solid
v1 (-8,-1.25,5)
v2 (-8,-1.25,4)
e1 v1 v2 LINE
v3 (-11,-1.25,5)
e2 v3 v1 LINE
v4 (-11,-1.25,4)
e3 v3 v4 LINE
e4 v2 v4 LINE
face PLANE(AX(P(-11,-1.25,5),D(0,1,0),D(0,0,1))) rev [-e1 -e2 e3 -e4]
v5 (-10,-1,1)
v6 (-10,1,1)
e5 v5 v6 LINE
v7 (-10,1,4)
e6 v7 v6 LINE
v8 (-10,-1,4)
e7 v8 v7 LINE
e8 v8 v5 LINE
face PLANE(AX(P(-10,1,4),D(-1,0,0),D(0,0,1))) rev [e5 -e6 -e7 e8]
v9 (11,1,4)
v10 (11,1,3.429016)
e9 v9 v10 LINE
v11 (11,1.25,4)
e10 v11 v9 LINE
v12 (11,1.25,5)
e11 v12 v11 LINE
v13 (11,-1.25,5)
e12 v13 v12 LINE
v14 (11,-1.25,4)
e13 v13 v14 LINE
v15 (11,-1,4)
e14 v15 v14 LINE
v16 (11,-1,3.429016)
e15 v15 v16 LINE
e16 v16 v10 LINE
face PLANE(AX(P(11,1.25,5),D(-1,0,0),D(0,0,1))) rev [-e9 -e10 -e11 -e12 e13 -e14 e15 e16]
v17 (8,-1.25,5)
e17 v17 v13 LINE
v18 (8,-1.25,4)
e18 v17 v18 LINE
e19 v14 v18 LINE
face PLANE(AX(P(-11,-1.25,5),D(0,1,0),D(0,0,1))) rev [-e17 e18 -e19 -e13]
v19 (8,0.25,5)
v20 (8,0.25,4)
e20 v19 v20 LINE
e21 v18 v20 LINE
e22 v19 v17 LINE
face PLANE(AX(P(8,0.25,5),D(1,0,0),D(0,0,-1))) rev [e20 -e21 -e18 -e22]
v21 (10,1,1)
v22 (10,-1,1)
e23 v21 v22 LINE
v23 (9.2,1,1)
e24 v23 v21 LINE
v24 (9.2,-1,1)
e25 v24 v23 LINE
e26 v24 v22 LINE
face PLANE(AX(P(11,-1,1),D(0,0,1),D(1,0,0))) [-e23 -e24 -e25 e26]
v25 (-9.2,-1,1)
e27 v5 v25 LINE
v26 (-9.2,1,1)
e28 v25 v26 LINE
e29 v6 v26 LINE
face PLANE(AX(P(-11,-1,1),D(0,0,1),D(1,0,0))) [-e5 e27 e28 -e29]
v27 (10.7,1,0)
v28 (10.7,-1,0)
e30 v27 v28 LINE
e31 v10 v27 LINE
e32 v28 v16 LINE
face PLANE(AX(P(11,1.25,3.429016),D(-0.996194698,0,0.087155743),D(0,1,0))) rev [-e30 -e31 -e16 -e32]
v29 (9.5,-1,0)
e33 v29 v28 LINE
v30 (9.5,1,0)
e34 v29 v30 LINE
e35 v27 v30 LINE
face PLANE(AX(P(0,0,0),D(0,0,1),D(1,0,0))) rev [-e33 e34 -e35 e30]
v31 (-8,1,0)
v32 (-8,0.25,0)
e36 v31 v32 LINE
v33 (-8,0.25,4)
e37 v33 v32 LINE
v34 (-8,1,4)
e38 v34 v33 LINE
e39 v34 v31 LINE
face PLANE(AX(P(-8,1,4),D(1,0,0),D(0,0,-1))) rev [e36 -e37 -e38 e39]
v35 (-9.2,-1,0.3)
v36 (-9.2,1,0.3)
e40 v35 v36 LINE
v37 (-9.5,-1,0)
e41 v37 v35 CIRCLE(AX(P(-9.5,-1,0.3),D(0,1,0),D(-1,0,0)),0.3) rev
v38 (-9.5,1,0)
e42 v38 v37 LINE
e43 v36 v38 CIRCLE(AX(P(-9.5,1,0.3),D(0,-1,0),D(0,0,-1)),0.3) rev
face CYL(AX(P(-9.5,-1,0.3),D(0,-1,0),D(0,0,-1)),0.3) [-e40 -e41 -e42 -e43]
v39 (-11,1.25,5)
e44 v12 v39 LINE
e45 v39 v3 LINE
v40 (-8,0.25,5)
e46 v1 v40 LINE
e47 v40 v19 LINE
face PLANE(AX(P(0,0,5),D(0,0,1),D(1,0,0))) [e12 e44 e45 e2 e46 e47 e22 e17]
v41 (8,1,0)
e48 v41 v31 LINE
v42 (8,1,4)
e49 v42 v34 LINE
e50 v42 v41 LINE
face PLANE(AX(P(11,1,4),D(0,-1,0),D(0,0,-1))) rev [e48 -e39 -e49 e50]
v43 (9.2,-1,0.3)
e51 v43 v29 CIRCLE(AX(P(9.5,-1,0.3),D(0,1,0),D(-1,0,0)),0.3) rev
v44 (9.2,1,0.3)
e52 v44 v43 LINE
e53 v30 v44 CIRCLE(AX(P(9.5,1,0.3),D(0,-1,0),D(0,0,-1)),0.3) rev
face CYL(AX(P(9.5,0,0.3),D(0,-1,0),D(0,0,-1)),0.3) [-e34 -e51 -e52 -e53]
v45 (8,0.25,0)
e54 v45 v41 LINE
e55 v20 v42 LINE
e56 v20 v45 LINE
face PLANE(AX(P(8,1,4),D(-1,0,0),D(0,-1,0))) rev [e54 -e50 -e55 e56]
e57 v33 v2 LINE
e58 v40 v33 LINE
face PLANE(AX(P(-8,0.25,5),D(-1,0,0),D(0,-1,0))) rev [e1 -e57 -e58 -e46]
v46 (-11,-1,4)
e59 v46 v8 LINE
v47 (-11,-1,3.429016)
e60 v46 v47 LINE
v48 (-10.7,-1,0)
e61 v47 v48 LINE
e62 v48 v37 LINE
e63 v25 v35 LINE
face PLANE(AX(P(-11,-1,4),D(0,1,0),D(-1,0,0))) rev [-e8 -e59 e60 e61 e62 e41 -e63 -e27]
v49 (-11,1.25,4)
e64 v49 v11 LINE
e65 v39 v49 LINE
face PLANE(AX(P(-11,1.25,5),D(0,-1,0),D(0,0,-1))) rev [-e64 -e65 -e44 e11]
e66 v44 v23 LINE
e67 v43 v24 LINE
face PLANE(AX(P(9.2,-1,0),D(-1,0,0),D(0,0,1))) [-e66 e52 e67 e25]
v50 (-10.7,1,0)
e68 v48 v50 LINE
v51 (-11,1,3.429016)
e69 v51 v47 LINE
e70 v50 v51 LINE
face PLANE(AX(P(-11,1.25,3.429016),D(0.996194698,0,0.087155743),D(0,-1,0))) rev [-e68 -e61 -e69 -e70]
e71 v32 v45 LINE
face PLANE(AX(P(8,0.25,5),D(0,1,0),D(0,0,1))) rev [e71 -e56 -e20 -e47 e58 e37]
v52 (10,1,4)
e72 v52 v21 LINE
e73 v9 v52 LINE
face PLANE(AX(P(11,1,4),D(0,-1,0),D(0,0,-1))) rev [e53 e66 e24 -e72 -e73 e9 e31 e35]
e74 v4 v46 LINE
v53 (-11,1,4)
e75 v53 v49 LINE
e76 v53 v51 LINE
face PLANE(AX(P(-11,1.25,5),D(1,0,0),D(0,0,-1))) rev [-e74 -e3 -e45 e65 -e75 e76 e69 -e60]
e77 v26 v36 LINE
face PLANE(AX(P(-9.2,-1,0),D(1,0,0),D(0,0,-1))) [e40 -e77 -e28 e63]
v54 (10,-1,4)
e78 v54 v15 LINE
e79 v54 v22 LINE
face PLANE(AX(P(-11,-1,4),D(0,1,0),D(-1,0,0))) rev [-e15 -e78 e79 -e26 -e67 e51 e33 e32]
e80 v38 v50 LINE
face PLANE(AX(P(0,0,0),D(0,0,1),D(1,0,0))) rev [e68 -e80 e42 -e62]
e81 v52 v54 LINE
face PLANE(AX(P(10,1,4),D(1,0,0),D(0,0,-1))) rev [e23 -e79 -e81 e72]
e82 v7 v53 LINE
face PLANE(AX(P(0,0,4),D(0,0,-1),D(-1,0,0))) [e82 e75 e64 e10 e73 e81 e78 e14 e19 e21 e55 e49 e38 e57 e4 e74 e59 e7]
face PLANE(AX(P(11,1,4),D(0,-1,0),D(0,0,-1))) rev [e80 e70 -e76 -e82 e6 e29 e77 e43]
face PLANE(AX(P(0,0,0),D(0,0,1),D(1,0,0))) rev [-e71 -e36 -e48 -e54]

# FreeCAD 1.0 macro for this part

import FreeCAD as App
import Part
import Sketcher

V = App.Vector


def edges_at(feature, points):
    """Names of the edges that pass closest to the given points."""
    edges = feature.Shape.Edges
    near = lambda p: min(range(len(edges)), key=lambda i: edges[i].distToShape(Part.Vertex(*p))[0])
    return sorted({f"Edge{near(p) + 1}" for p in points})

doc = App.newDocument("Part")
body = doc.addObject("PartDesign::Body", "Body")

# Sketch on XY plane
sketch1 = body.newObject("Sketcher::SketchObject", "Sketch")
sketch1.AttachmentSupport = (doc.getObject("XY_Plane"), [""])
sketch1.MapMode = "FlatFace"
sketch1.addGeometry(Part.LineSegment(V(-11, 1.25, 0), V(-11, -1.25, 0)), False)
sketch1.addGeometry(Part.LineSegment(V(-11, -1.25, 0), V(11, -1.25, 0)), False)
sketch1.addGeometry(Part.LineSegment(V(11, -1.25, 0), V(11, 1.25, 0)), False)
sketch1.addGeometry(Part.LineSegment(V(11, 1.25, 0), V(-11, 1.25, 0)), False)
sketch1.addConstraint(Sketcher.Constraint("Coincident", 0, 2, 1, 1))
sketch1.addConstraint(Sketcher.Constraint("Coincident", 1, 2, 2, 1))
sketch1.addConstraint(Sketcher.Constraint("Coincident", 2, 2, 3, 1))
sketch1.addConstraint(Sketcher.Constraint("Coincident", 3, 2, 0, 1))
sketch1.addConstraint(Sketcher.Constraint("Vertical", 0))
sketch1.addConstraint(Sketcher.Constraint("Horizontal", 1))
sketch1.addConstraint(Sketcher.Constraint("Vertical", 2))
sketch1.addConstraint(Sketcher.Constraint("Horizontal", 3))
sketch1.addConstraint(Sketcher.Constraint("Symmetric", 0, 2, 2, 2, -1, 1))
sketch1.addConstraint(Sketcher.Constraint("DistanceX", 1, 1, 1, 2, 22.0))
sketch1.addConstraint(Sketcher.Constraint("DistanceY", 0, 2, 0, 1, 2.5))
pad1 = body.newObject("PartDesign::Pad", "Pad")
pad1.Profile = sketch1
pad1.Length = 5

# Sketch on XY plane
sketch2 = body.newObject("Sketcher::SketchObject", "Sketch001")
sketch2.AttachmentSupport = (doc.getObject("XY_Plane"), [""])
sketch2.MapMode = "FlatFace"
sketch2.addGeometry(Part.LineSegment(V(11, 1.25, 0), V(11, 1, 0)), False)
sketch2.addGeometry(Part.LineSegment(V(11, 1, 0), V(-11, 1, 0)), False)
sketch2.addGeometry(Part.LineSegment(V(-11, 1, 0), V(-11, 1.25, 0)), False)
sketch2.addGeometry(Part.LineSegment(V(-11, 1.25, 0), V(11, 1.25, 0)), False)
sketch2.addGeometry(Part.LineSegment(V(11, -1, 0), V(11, -1.25, 0)), False)
sketch2.addGeometry(Part.LineSegment(V(11, -1.25, 0), V(-11, -1.25, 0)), False)
sketch2.addGeometry(Part.LineSegment(V(-11, -1.25, 0), V(-11, -1, 0)), False)
sketch2.addGeometry(Part.LineSegment(V(-11, -1, 0), V(11, -1, 0)), False)
sketch2.addConstraint(Sketcher.Constraint("Coincident", 0, 2, 1, 1))
sketch2.addConstraint(Sketcher.Constraint("Coincident", 1, 2, 2, 1))
sketch2.addConstraint(Sketcher.Constraint("Coincident", 2, 2, 3, 1))
sketch2.addConstraint(Sketcher.Constraint("Coincident", 3, 2, 0, 1))
sketch2.addConstraint(Sketcher.Constraint("Coincident", 4, 2, 5, 1))
sketch2.addConstraint(Sketcher.Constraint("Coincident", 5, 2, 6, 1))
sketch2.addConstraint(Sketcher.Constraint("Coincident", 6, 2, 7, 1))
sketch2.addConstraint(Sketcher.Constraint("Coincident", 7, 2, 4, 1))
sketch2.addConstraint(Sketcher.Constraint("Vertical", 0))
sketch2.addConstraint(Sketcher.Constraint("Horizontal", 1))
sketch2.addConstraint(Sketcher.Constraint("Vertical", 2))
sketch2.addConstraint(Sketcher.Constraint("Horizontal", 3))
sketch2.addConstraint(Sketcher.Constraint("Vertical", 4))
sketch2.addConstraint(Sketcher.Constraint("Horizontal", 5))
sketch2.addConstraint(Sketcher.Constraint("Vertical", 6))
sketch2.addConstraint(Sketcher.Constraint("Horizontal", 7))
sketch2.addConstraint(Sketcher.Constraint("Symmetric", 2, 2, 4, 2, -1, 1))
sketch2.addConstraint(Sketcher.Constraint("Symmetric", 0, 2, 6, 2, -1, 1))
sketch2.addConstraint(Sketcher.Constraint("Vertical", 3, 2, 4, 2))
sketch2.addConstraint(Sketcher.Constraint("DistanceX", 1, 2, 1, 1, 22.0))
sketch2.addConstraint(Sketcher.Constraint("DistanceY", -1, 1, 0, 2, 1.0))
sketch2.addConstraint(Sketcher.Constraint("DistanceY", 0, 2, 0, 1, 0.25))
pocket1 = body.newObject("PartDesign::Pocket", "Pocket")
pocket1.Profile = sketch2
pocket1.Length = 4
pocket1.Reversed = True

# Sketch on XY plane
sketch3 = body.newObject("Sketcher::SketchObject", "Sketch002")
sketch3.AttachmentSupport = (doc.getObject("XY_Plane"), [""])
sketch3.MapMode = "FlatFace"
sketch3.addGeometry(Part.LineSegment(V(10, 1, 0), V(10, -1, 0)), False)
sketch3.addGeometry(Part.LineSegment(V(10, -1, 0), V(8, -1, 0)), False)
sketch3.addGeometry(Part.LineSegment(V(8, -1, 0), V(8, 1, 0)), False)
sketch3.addGeometry(Part.LineSegment(V(8, 1, 0), V(10, 1, 0)), False)
sketch3.addGeometry(Part.LineSegment(V(-8, 1, 0), V(-8, -1, 0)), False)
sketch3.addGeometry(Part.LineSegment(V(-8, -1, 0), V(-10, -1, 0)), False)
sketch3.addGeometry(Part.LineSegment(V(-10, -1, 0), V(-10, 1, 0)), False)
sketch3.addGeometry(Part.LineSegment(V(-10, 1, 0), V(-8, 1, 0)), False)
sketch3.addConstraint(Sketcher.Constraint("Coincident", 0, 2, 1, 1))
sketch3.addConstraint(Sketcher.Constraint("Coincident", 1, 2, 2, 1))
sketch3.addConstraint(Sketcher.Constraint("Coincident", 2, 2, 3, 1))
sketch3.addConstraint(Sketcher.Constraint("Coincident", 3, 2, 0, 1))
sketch3.addConstraint(Sketcher.Constraint("Coincident", 4, 2, 5, 1))
sketch3.addConstraint(Sketcher.Constraint("Coincident", 5, 2, 6, 1))
sketch3.addConstraint(Sketcher.Constraint("Coincident", 6, 2, 7, 1))
sketch3.addConstraint(Sketcher.Constraint("Coincident", 7, 2, 4, 1))
sketch3.addConstraint(Sketcher.Constraint("Vertical", 0))
sketch3.addConstraint(Sketcher.Constraint("Horizontal", 1))
sketch3.addConstraint(Sketcher.Constraint("Vertical", 2))
sketch3.addConstraint(Sketcher.Constraint("Horizontal", 3))
sketch3.addConstraint(Sketcher.Constraint("Vertical", 4))
sketch3.addConstraint(Sketcher.Constraint("Horizontal", 5))
sketch3.addConstraint(Sketcher.Constraint("Vertical", 6))
sketch3.addConstraint(Sketcher.Constraint("Horizontal", 7))
sketch3.addConstraint(Sketcher.Constraint("Symmetric", 2, 2, 4, 2, -1, 1))
sketch3.addConstraint(Sketcher.Constraint("Symmetric", 0, 2, 6, 2, -1, 1))
sketch3.addConstraint(Sketcher.Constraint("Horizontal", 1, 2, 4, 2))
sketch3.addConstraint(Sketcher.Constraint("Equal", 7, 0))
sketch3.addConstraint(Sketcher.Constraint("DistanceX", 1, 2, 1, 1, 2.0))
sketch3.addConstraint(Sketcher.Constraint("DistanceX", -1, 1, 0, 2, 10.0))
pocket2 = body.newObject("PartDesign::Pocket", "Pocket001")
pocket2.Profile = sketch3
pocket2.Length = 4
pocket2.Reversed = True

# Sketch on XY plane
sketch4 = body.newObject("Sketcher::SketchObject", "Sketch003")
sketch4.AttachmentSupport = (doc.getObject("XY_Plane"), [""])
sketch4.MapMode = "FlatFace"
sketch4.addGeometry(Part.LineSegment(V(8, 0.25, 0), V(8, -1.25, 0)), False)
sketch4.addGeometry(Part.LineSegment(V(8, -1.25, 0), V(-8, -1.25, 0)), False)
sketch4.addGeometry(Part.LineSegment(V(-8, -1.25, 0), V(-8, 0.25, 0)), False)
sketch4.addGeometry(Part.LineSegment(V(-8, 0.25, 0), V(8, 0.25, 0)), False)
sketch4.addConstraint(Sketcher.Constraint("Coincident", 0, 2, 1, 1))
sketch4.addConstraint(Sketcher.Constraint("Coincident", 1, 2, 2, 1))
sketch4.addConstraint(Sketcher.Constraint("Coincident", 2, 2, 3, 1))
sketch4.addConstraint(Sketcher.Constraint("Coincident", 3, 2, 0, 1))
sketch4.addConstraint(Sketcher.Constraint("Vertical", 0))
sketch4.addConstraint(Sketcher.Constraint("Horizontal", 1))
sketch4.addConstraint(Sketcher.Constraint("Vertical", 2))
sketch4.addConstraint(Sketcher.Constraint("Horizontal", 3))
sketch4.addConstraint(Sketcher.Constraint("DistanceX", 1, 2, 1, 1, 16.0))
sketch4.addConstraint(Sketcher.Constraint("DistanceY", 0, 2, 0, 1, 1.5))
sketch4.addConstraint(Sketcher.Constraint("DistanceX", -1, 1, 0, 2, 8.0))
sketch4.addConstraint(Sketcher.Constraint("DistanceY", 0, 2, -1, 1, 1.25))
pocket3 = body.newObject("PartDesign::Pocket", "Pocket002")
pocket3.Profile = sketch4
pocket3.Length = 5
pocket3.Reversed = True

# Sketch on XZ plane
sketch5 = body.newObject("Sketcher::SketchObject", "Sketch004")
sketch5.AttachmentSupport = (doc.getObject("XZ_Plane"), [""])
sketch5.MapMode = "FlatFace"
sketch5.AttachmentOffset = App.Placement(V(0, 0, -1), App.Rotation())
sketch5.addGeometry(Part.LineSegment(V(-11, 0, 0), V(-11, 1, 0)), False)
sketch5.addGeometry(Part.LineSegment(V(-11, 1, 0), V(-9.2, 1, 0)), False)
sketch5.addGeometry(Part.LineSegment(V(-9.2, 1, 0), V(-9.2, 0, 0)), False)
sketch5.addGeometry(Part.LineSegment(V(-9.2, 0, 0), V(-11, 0, 0)), False)
sketch5.addGeometry(Part.LineSegment(V(9.2, 0, 0), V(9.2, 1, 0)), False)
sketch5.addGeometry(Part.LineSegment(V(9.2, 1, 0), V(11, 1, 0)), False)
sketch5.addGeometry(Part.LineSegment(V(11, 1, 0), V(11, 0, 0)), False)
sketch5.addGeometry(Part.LineSegment(V(11, 0, 0), V(9.2, 0, 0)), False)
sketch5.addConstraint(Sketcher.Constraint("Coincident", 0, 2, 1, 1))
sketch5.addConstraint(Sketcher.Constraint("Coincident", 1, 2, 2, 1))
sketch5.addConstraint(Sketcher.Constraint("Coincident", 2, 2, 3, 1))
sketch5.addConstraint(Sketcher.Constraint("Coincident", 3, 2, 0, 1))
sketch5.addConstraint(Sketcher.Constraint("Coincident", 4, 2, 5, 1))
sketch5.addConstraint(Sketcher.Constraint("Coincident", 5, 2, 6, 1))
sketch5.addConstraint(Sketcher.Constraint("Coincident", 6, 2, 7, 1))
sketch5.addConstraint(Sketcher.Constraint("Coincident", 7, 2, 4, 1))
sketch5.addConstraint(Sketcher.Constraint("Vertical", 0))
sketch5.addConstraint(Sketcher.Constraint("Horizontal", 1))
sketch5.addConstraint(Sketcher.Constraint("Vertical", 2))
sketch5.addConstraint(Sketcher.Constraint("Horizontal", 3))
sketch5.addConstraint(Sketcher.Constraint("Vertical", 4))
sketch5.addConstraint(Sketcher.Constraint("Horizontal", 5))
sketch5.addConstraint(Sketcher.Constraint("Vertical", 6))
sketch5.addConstraint(Sketcher.Constraint("Horizontal", 7))
sketch5.addConstraint(Sketcher.Constraint("Symmetric", 3, 2, 6, 2, -1, 1))
sketch5.addConstraint(Sketcher.Constraint("Symmetric", 1, 2, 4, 2, -2))
sketch5.addConstraint(Sketcher.Constraint("PointOnObject", 2, 2, -1))
sketch5.addConstraint(Sketcher.Constraint("DistanceY", 0, 1, 0, 2, 1.0))
sketch5.addConstraint(Sketcher.Constraint("DistanceX", 1, 1, 1, 2, 1.8))
sketch5.addConstraint(Sketcher.Constraint("DistanceX", 0, 2, -1, 1, 11.0))
pad2 = body.newObject("PartDesign::Pad", "Pad001")
pad2.Profile = sketch5
pad2.Length = 2
doc.recompute()

fillet = body.newObject("PartDesign::Fillet", "Fillet")
fillet.Base = (pad2, edges_at(pad2, [(-9.2, 0, 0), (9.2, 0, 0)]))
fillet.Radius = 0.3
doc.recompute()

chamfer = body.newObject("PartDesign::Chamfer", "Chamfer")
chamfer.Base = (fillet, edges_at(fillet, [(11, 0, 0)]))
chamfer.ChamferType = "Two distances"
chamfer.Size = 3.429016
chamfer.Size2 = 0.3
doc.recompute()

chamfer2 = body.newObject("PartDesign::Chamfer", "Chamfer001")
chamfer2.Base = (chamfer, edges_at(chamfer, [(-11, 0, 0)]))
chamfer2.ChamferType = "Two distances"
chamfer2.Size = 3.429016
chamfer2.Size2 = 0.3

doc.recompute()
